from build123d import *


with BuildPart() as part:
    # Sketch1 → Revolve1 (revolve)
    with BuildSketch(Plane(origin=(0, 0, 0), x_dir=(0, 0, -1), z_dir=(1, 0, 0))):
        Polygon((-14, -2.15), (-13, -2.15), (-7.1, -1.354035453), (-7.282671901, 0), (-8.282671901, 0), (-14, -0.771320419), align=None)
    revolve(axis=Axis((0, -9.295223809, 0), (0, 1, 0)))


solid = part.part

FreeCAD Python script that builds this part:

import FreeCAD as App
import Part
import Sketcher
from FreeCAD import Vector

doc = App.newDocument("Part")
body = doc.addObject("PartDesign::Body", "Body")

# Sketch on YZ plane
sketch1 = doc.addObject("Sketcher::SketchObject", "Sketch")
body.addObject(sketch1)
sketch1.AttachmentSupport = (doc.YZ_Plane, [""])
sketch1.MapMode = "FlatFace"
sketch1.addGeometry(Part.LineSegment(Vector(-2.15, 14, 0), Vector(-2.15, 13, 0)), False)
sketch1.addGeometry(Part.LineSegment(Vector(-2.15, 13, 0), Vector(-1.354035, 7.1, 0)), False)
sketch1.addGeometry(Part.LineSegment(Vector(-1.354035, 7.1, 0), Vector(0, 7.282672, 0)), False)
sketch1.addGeometry(Part.LineSegment(Vector(0, 7.282672, 0), Vector(0, 8.282672, 0)), False)
sketch1.addGeometry(Part.LineSegment(Vector(0, 8.282672, 0), Vector(-0.77132, 14, 0)), False)
sketch1.addGeometry(Part.LineSegment(Vector(-0.77132, 14, 0), Vector(-2.15, 14, 0)), False)
sketch1.addConstraint(Sketcher.Constraint("Coincident", 0, 2, 1, 1))
sketch1.addConstraint(Sketcher.Constraint("Coincident", 1, 2, 2, 1))
sketch1.addConstraint(Sketcher.Constraint("Coincident", 2, 2, 3, 1))
sketch1.addConstraint(Sketcher.Constraint("Coincident", 3, 2, 4, 1))
sketch1.addConstraint(Sketcher.Constraint("Coincident", 4, 2, 5, 1))
sketch1.addConstraint(Sketcher.Constraint("Coincident", 5, 2, 0, 1))
sketch1.addConstraint(Sketcher.Constraint("Vertical", 0))
sketch1.addConstraint(Sketcher.Constraint("Vertical", 3))
sketch1.addConstraint(Sketcher.Constraint("Horizontal", 5))
sketch1.addConstraint(Sketcher.Constraint("PointOnObject", 2, 2, -2))
sketch1.addConstraint(Sketcher.Constraint("Perpendicular", 1, 2))
sketch1.addConstraint(Sketcher.Constraint("Perpendicular", 2, 4))
sketch1.addConstraint(Sketcher.Constraint("Equal", 0, 3))
sketch1.addConstraint(Sketcher.Constraint("DistanceY", 0, 2, 0, 1, 1.0))
sketch1.addConstraint(Sketcher.Constraint("DistanceY", -1, 1, 0, 2, 13.0))
sketch1.addConstraint(Sketcher.Constraint("DistanceY", -1, 1, 1, 2, 7.1))
sketch1.addConstraint(Sketcher.Constraint("DistanceX", 0, 2, -1, 1, 2.15))
sketch1.addConstraint(Sketcher.Constraint("Distance", 2, 1.366302))
revolution = doc.addObject("PartDesign::Revolution", "Revolution")
body.addObject(revolution)
revolution.Profile = sketch1
revolution.ReferenceAxis = (sketch1, ["H_Axis"])
revolution.Angle = 360

doc.recompute()
